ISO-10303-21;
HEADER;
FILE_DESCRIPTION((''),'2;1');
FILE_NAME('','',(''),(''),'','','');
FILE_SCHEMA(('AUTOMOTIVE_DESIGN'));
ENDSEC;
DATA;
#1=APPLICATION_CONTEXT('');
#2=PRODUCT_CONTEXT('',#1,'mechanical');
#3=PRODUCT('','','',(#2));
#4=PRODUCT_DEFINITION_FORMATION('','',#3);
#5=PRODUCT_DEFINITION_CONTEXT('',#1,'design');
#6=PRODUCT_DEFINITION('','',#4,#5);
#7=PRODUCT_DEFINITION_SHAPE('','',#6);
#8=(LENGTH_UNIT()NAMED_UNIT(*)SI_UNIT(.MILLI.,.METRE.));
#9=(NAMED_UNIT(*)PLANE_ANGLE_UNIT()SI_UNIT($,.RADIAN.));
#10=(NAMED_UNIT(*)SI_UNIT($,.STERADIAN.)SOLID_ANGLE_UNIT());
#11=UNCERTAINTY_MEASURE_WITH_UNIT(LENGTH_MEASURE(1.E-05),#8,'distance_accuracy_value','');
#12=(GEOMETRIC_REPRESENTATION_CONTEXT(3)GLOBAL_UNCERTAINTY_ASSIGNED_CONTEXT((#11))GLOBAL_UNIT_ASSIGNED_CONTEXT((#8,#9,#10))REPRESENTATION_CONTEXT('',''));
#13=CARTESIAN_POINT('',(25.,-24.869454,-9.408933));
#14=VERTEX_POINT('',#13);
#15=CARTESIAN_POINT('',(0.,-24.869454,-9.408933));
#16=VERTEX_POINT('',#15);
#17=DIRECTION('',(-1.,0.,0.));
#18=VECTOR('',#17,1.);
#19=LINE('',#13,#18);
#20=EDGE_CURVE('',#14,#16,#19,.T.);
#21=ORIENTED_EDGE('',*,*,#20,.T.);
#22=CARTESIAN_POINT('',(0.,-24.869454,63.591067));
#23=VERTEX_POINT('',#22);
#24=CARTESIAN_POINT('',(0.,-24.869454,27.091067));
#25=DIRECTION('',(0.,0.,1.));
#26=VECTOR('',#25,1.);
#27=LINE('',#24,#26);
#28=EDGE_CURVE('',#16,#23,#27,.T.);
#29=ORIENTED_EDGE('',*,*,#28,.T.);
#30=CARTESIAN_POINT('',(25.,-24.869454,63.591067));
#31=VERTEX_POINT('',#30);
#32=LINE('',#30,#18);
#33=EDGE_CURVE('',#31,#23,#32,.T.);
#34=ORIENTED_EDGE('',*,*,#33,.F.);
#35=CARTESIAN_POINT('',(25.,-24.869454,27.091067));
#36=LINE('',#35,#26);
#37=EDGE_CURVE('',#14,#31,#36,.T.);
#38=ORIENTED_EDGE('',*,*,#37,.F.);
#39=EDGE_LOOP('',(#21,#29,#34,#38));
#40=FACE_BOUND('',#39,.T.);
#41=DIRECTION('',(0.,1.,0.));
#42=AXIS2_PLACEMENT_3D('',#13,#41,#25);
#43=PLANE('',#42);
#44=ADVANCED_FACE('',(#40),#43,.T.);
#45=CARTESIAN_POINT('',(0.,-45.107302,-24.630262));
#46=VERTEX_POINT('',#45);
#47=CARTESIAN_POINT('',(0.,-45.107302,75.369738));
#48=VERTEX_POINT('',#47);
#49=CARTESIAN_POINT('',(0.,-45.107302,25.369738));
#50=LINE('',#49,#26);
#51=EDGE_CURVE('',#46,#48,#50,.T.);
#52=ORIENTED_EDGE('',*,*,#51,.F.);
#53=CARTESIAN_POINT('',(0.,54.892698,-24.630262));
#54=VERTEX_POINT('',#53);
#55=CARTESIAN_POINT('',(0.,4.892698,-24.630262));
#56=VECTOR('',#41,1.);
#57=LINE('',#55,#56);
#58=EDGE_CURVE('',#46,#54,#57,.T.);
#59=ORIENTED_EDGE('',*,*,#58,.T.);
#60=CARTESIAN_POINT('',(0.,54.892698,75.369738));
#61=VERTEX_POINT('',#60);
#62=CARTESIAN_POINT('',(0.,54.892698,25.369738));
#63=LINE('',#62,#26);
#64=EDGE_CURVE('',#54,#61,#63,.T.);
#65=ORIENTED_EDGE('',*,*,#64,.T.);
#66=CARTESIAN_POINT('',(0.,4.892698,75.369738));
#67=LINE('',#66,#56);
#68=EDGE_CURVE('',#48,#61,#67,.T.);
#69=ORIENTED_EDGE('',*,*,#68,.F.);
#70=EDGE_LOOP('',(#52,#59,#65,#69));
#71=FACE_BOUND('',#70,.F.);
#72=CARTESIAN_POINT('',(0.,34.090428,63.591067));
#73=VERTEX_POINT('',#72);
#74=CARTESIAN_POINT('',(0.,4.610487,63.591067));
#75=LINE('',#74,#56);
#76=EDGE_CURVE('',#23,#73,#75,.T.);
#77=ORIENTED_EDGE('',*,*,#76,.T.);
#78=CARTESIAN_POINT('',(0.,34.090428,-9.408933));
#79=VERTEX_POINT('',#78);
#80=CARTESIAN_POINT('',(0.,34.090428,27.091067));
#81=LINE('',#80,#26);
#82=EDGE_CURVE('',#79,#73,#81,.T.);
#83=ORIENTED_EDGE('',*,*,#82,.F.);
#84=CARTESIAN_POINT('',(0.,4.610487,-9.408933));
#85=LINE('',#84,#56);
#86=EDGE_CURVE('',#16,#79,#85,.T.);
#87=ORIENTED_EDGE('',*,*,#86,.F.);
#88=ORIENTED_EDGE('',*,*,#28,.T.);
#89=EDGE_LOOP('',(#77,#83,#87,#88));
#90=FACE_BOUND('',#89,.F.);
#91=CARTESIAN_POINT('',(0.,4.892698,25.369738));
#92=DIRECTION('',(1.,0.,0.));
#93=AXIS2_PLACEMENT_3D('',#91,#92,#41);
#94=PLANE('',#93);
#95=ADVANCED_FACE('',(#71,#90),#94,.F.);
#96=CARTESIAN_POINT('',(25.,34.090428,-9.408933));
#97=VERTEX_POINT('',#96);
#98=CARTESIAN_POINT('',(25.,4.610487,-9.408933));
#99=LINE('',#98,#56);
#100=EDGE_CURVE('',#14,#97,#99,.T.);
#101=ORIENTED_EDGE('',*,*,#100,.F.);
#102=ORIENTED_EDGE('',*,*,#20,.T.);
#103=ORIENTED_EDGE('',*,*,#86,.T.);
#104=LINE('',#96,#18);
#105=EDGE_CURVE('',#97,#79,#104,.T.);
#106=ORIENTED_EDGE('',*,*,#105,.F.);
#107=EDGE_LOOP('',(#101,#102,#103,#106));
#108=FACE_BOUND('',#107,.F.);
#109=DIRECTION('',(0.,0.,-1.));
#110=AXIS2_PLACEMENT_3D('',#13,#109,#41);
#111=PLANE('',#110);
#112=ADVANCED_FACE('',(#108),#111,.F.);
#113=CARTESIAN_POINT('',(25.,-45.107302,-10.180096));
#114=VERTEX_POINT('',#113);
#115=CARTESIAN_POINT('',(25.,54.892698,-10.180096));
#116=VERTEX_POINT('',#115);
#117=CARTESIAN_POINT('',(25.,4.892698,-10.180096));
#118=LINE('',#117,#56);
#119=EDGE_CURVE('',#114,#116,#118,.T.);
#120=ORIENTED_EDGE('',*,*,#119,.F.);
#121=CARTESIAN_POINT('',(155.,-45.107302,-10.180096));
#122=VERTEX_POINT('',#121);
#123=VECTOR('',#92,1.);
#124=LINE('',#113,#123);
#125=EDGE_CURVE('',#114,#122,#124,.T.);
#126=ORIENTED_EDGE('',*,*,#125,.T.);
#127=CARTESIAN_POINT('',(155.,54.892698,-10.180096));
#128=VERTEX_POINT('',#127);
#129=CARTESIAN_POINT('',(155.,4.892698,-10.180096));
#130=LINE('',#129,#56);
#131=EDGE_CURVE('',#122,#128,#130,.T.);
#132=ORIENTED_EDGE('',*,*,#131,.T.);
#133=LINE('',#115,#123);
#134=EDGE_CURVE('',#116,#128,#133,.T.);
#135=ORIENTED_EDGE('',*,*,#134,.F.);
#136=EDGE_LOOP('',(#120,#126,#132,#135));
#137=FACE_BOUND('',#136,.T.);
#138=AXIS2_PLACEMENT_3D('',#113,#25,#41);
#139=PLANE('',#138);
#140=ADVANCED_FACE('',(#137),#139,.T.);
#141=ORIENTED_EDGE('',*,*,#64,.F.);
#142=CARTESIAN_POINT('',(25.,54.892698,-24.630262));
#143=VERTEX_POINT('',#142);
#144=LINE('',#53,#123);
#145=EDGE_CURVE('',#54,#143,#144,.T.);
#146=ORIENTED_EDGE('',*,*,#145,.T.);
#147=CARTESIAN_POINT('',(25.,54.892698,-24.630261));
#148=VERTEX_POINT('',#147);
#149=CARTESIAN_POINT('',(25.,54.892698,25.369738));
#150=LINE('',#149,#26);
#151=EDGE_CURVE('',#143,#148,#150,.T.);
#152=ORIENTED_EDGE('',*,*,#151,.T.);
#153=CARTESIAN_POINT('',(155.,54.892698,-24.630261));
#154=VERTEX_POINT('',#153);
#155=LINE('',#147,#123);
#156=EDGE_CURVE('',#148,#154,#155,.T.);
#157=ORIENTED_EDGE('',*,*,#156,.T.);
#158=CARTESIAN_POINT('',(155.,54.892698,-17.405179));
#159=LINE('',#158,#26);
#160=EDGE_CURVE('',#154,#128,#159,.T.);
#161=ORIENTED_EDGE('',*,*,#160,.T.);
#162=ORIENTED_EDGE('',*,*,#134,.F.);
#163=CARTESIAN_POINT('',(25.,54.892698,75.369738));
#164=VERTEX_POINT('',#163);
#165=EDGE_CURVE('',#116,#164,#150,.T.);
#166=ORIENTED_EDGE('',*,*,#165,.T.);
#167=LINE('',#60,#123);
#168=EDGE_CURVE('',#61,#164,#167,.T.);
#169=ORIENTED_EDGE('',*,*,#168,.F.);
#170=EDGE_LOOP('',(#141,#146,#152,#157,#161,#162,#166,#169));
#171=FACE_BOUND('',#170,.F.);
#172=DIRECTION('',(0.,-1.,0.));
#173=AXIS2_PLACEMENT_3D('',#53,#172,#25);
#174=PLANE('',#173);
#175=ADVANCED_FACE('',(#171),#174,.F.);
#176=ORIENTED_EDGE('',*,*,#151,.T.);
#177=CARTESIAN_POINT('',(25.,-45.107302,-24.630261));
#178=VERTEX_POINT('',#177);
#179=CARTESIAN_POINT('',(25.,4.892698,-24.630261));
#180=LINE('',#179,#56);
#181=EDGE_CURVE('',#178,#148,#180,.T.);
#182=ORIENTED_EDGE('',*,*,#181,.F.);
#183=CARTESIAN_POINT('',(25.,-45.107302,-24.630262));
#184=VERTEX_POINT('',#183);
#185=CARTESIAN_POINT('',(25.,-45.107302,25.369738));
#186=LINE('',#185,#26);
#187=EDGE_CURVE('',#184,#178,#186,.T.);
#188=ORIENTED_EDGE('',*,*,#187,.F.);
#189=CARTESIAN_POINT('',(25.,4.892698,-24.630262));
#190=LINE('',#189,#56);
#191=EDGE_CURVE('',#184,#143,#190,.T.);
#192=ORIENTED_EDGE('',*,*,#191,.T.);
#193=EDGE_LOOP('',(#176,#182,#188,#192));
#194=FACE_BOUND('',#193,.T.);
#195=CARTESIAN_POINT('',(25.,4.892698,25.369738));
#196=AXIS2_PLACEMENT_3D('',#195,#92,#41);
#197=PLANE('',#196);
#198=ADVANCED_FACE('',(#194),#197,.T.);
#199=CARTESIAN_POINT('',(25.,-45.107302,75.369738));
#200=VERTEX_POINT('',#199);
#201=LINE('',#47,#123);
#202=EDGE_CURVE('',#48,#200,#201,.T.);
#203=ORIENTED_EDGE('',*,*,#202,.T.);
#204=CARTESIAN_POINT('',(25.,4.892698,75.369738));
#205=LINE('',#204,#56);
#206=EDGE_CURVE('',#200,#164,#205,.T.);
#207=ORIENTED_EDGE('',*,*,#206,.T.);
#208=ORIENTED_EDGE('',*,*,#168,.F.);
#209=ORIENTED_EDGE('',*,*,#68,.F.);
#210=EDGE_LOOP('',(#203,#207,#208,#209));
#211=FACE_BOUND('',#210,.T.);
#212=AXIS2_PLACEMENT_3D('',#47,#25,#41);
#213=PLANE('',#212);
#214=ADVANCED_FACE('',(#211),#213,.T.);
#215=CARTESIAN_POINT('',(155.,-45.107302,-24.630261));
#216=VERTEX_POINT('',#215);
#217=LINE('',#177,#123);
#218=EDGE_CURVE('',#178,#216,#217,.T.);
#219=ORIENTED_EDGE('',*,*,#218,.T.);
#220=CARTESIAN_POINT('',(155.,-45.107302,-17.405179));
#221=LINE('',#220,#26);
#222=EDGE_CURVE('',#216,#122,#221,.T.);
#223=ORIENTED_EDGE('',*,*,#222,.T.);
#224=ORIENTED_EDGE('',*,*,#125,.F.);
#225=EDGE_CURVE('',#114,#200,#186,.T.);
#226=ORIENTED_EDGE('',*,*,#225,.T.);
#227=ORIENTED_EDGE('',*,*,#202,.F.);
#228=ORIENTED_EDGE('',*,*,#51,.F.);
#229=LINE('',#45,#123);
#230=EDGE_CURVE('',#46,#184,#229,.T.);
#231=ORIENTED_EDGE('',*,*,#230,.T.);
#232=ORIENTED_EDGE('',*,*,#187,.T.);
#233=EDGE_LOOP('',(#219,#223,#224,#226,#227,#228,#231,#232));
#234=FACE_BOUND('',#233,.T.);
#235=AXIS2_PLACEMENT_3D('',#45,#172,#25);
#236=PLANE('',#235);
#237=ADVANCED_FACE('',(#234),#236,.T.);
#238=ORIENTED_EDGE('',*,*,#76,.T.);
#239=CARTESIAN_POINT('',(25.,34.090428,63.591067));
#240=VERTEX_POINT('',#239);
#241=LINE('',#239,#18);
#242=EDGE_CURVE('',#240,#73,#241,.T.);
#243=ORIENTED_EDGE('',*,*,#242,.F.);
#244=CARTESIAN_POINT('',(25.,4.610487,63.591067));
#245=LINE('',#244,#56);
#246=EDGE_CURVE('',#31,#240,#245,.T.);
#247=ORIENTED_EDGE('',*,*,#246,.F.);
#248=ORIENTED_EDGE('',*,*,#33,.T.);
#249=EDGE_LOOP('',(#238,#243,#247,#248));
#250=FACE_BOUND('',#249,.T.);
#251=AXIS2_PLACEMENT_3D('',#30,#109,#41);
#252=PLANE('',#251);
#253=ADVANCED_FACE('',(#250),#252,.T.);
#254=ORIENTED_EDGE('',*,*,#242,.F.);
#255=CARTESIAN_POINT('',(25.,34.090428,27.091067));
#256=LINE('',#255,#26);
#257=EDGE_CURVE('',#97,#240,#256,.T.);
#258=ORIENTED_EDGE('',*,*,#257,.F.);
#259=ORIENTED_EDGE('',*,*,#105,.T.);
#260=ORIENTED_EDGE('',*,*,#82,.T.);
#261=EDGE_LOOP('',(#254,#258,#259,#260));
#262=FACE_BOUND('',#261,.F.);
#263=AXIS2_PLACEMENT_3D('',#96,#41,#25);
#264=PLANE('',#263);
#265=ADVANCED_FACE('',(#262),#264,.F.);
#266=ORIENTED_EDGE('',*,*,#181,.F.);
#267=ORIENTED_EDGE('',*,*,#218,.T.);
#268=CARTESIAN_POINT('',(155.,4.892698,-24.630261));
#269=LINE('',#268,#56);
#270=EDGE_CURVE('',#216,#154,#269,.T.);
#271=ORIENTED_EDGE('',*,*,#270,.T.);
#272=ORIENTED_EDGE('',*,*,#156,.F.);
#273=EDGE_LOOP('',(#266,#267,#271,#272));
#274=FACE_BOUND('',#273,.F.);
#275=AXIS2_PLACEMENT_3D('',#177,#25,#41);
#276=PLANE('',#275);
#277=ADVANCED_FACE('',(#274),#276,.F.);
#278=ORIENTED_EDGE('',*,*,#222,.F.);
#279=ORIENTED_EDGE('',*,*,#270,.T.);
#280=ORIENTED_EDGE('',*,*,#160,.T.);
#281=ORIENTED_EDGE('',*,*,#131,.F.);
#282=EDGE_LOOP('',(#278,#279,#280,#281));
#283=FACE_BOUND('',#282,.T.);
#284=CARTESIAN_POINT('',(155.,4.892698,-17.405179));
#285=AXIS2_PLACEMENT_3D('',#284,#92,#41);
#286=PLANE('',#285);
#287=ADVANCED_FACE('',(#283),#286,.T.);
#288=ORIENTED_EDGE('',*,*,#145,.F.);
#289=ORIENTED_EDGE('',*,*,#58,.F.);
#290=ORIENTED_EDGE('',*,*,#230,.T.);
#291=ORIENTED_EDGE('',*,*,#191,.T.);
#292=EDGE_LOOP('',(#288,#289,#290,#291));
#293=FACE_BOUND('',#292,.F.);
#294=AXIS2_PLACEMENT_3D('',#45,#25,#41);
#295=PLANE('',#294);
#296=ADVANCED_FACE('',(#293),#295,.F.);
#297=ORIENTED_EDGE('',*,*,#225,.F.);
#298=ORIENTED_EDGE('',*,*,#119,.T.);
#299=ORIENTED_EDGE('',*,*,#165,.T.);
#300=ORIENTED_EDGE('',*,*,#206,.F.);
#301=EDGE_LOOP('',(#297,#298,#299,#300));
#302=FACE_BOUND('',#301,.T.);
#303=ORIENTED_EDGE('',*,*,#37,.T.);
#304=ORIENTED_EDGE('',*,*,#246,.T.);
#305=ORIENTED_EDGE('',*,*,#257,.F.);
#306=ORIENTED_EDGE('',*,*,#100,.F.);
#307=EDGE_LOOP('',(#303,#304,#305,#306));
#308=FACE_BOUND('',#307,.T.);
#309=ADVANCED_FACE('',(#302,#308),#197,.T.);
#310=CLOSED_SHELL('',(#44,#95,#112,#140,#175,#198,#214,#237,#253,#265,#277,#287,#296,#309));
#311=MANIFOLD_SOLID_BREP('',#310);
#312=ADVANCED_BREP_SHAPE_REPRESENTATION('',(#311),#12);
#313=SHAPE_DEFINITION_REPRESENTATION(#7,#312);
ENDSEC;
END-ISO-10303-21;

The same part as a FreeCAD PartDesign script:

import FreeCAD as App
import Part
import Sketcher

V = App.Vector
Q = App.Units.Quantity

doc = App.newDocument("Part")
params = doc.addObject("Spreadsheet::Sheet", "Params")
for row, (alias, value) in enumerate([
    ("sketch1_width", "100 mm"),
    ("pad1_length", "25 mm"),
    ("sketch2_height", "73 mm"),
    ("pocket1_length", "25 mm"),
    ("sketch3_width", "100 mm"),
    ("pad2_length", "130 mm"),
], start=1):
    params.set(f"A{row}", alias)
    params.set(f"B{row}", "=" + value)
    params.setAlias(f"B{row}", alias)

body = doc.addObject("PartDesign::Body", "Body")

# Sketch on YZ plane
sketch1 = body.newObject("Sketcher::SketchObject", "Sketch")
sketch1.AttachmentSupport = (doc.getObject("YZ_Plane"), [""])
sketch1.MapMode = "FlatFace"
sketch1.addGeometry([
    Part.LineSegment(V(-45.107302, 75.369738, 0), V(-45.107302, -24.630262, 0)),
    Part.LineSegment(V(-45.107302, -24.630262, 0), V(54.892698, -24.630262, 0)),
    Part.LineSegment(V(54.892698, -24.630262, 0), V(54.892698, 75.369738, 0)),
    Part.LineSegment(V(54.892698, 75.369738, 0), V(-45.107302, 75.369738, 0)),
], False)
sketch1.addConstraint([
    Sketcher.Constraint("Coincident", 0, 2, 1, 1),
    Sketcher.Constraint("Coincident", 1, 2, 2, 1),
    Sketcher.Constraint("Coincident", 2, 2, 3, 1),
    Sketcher.Constraint("Coincident", 3, 2, 0, 1),
    Sketcher.Constraint("Vertical", 0),
    Sketcher.Constraint("Horizontal", 1),
    Sketcher.Constraint("Vertical", 2),
    Sketcher.Constraint("Horizontal", 3),
    Sketcher.Constraint("Equal", 3, 0),
    Sketcher.Constraint("DistanceX", 1, 1, 1, 2, Q("100 mm")),
    Sketcher.Constraint("DistanceX", 0, 2, -1, 1, Q("45.107302 mm")),
    Sketcher.Constraint("DistanceY", 0, 2, -1, 1, Q("24.630262 mm")),
])
sketch1.setExpression("Constraints[9]", "Params.sketch1_width")
pad1 = body.newObject("PartDesign::Pad", "Pad")
pad1.Profile = sketch1
pad1.setExpression("Length", "Params.pad1_length")

# Sketch on YZ plane
sketch2 = body.newObject("Sketcher::SketchObject", "Sketch001")
sketch2.AttachmentSupport = (doc.getObject("YZ_Plane"), [""])
sketch2.MapMode = "FlatFace"
sketch2.AttachmentOffset = App.Placement(V(0, 0, 25), App.Rotation())
sketch2.addGeometry([
    Part.LineSegment(V(-24.869454, 63.591067, 0), V(-24.869454, -9.408933, 0)),
    Part.LineSegment(V(-24.869454, -9.408933, 0), V(34.090428, -9.408933, 0)),
    Part.LineSegment(V(34.090428, -9.408933, 0), V(34.090428, 63.591067, 0)),
    Part.LineSegment(V(34.090428, 63.591067, 0), V(-24.869454, 63.591067, 0)),
], False)
sketch2.addConstraint([
    Sketcher.Constraint("Coincident", 0, 2, 1, 1),
    Sketcher.Constraint("Coincident", 1, 2, 2, 1),
    Sketcher.Constraint("Coincident", 2, 2, 3, 1),
    Sketcher.Constraint("Coincident", 3, 2, 0, 1),
    Sketcher.Constraint("Vertical", 0),
    Sketcher.Constraint("Horizontal", 1),
    Sketcher.Constraint("Vertical", 2),
    Sketcher.Constraint("Horizontal", 3),
    Sketcher.Constraint("DistanceY", 0, 2, 0, 1, Q("73 mm")),
    Sketcher.Constraint("DistanceX", 1, 1, 1, 2, Q("58.959882 mm")),
    Sketcher.Constraint("DistanceX", -1, 1, 1, 2, Q("34.090428 mm")),
    Sketcher.Constraint("DistanceY", 0, 2, -1, 1, Q("9.408933 mm")),
])
sketch2.setExpression("Constraints[8]", "Params.sketch2_height")
pocket1 = body.newObject("PartDesign::Pocket", "Pocket")
pocket1.Profile = sketch2
pocket1.setExpression("Length", "Params.pocket1_length")

# Sketch on YZ plane
sketch3 = body.newObject("Sketcher::SketchObject", "Sketch002")
sketch3.AttachmentSupport = (doc.getObject("YZ_Plane"), [""])
sketch3.MapMode = "FlatFace"
sketch3.AttachmentOffset = App.Placement(V(0, 0, 25), App.Rotation())
sketch3.addGeometry([
    Part.LineSegment(V(-45.107302, -10.180096, 0), V(-45.107302, -24.630261, 0)),
    Part.LineSegment(V(-45.107302, -24.630261, 0), V(54.892698, -24.630261, 0)),
    Part.LineSegment(V(54.892698, -24.630261, 0), V(54.892698, -10.180096, 0)),
    Part.LineSegment(V(54.892698, -10.180096, 0), V(-45.107302, -10.180096, 0)),
], False)
sketch3.addConstraint([
    Sketcher.Constraint("Coincident", 0, 2, 1, 1),
    Sketcher.Constraint("Coincident", 1, 2, 2, 1),
    Sketcher.Constraint("Coincident", 2, 2, 3, 1),
    Sketcher.Constraint("Coincident", 3, 2, 0, 1),
    Sketcher.Constraint("Vertical", 0),
    Sketcher.Constraint("Horizontal", 1),
    Sketcher.Constraint("Vertical", 2),
    Sketcher.Constraint("Horizontal", 3),
    Sketcher.Constraint("DistanceX", 1, 1, 1, 2, Q("100 mm")),
    Sketcher.Constraint("DistanceX", 0, 2, -1, 1, Q("45.107302 mm")),
    Sketcher.Constraint("DistanceY", 0, 2, 0, 1, Q("14.450165 mm")),
    Sketcher.Constraint("DistanceY", 0, 2, -1, 1, Q("24.630261 mm")),
])
sketch3.setExpression("Constraints[8]", "Params.sketch3_width")
pad2 = body.newObject("PartDesign::Pad", "Pad001")
pad2.Profile = sketch3
pad2.setExpression("Length", "Params.pad2_length")

doc.recompute()
